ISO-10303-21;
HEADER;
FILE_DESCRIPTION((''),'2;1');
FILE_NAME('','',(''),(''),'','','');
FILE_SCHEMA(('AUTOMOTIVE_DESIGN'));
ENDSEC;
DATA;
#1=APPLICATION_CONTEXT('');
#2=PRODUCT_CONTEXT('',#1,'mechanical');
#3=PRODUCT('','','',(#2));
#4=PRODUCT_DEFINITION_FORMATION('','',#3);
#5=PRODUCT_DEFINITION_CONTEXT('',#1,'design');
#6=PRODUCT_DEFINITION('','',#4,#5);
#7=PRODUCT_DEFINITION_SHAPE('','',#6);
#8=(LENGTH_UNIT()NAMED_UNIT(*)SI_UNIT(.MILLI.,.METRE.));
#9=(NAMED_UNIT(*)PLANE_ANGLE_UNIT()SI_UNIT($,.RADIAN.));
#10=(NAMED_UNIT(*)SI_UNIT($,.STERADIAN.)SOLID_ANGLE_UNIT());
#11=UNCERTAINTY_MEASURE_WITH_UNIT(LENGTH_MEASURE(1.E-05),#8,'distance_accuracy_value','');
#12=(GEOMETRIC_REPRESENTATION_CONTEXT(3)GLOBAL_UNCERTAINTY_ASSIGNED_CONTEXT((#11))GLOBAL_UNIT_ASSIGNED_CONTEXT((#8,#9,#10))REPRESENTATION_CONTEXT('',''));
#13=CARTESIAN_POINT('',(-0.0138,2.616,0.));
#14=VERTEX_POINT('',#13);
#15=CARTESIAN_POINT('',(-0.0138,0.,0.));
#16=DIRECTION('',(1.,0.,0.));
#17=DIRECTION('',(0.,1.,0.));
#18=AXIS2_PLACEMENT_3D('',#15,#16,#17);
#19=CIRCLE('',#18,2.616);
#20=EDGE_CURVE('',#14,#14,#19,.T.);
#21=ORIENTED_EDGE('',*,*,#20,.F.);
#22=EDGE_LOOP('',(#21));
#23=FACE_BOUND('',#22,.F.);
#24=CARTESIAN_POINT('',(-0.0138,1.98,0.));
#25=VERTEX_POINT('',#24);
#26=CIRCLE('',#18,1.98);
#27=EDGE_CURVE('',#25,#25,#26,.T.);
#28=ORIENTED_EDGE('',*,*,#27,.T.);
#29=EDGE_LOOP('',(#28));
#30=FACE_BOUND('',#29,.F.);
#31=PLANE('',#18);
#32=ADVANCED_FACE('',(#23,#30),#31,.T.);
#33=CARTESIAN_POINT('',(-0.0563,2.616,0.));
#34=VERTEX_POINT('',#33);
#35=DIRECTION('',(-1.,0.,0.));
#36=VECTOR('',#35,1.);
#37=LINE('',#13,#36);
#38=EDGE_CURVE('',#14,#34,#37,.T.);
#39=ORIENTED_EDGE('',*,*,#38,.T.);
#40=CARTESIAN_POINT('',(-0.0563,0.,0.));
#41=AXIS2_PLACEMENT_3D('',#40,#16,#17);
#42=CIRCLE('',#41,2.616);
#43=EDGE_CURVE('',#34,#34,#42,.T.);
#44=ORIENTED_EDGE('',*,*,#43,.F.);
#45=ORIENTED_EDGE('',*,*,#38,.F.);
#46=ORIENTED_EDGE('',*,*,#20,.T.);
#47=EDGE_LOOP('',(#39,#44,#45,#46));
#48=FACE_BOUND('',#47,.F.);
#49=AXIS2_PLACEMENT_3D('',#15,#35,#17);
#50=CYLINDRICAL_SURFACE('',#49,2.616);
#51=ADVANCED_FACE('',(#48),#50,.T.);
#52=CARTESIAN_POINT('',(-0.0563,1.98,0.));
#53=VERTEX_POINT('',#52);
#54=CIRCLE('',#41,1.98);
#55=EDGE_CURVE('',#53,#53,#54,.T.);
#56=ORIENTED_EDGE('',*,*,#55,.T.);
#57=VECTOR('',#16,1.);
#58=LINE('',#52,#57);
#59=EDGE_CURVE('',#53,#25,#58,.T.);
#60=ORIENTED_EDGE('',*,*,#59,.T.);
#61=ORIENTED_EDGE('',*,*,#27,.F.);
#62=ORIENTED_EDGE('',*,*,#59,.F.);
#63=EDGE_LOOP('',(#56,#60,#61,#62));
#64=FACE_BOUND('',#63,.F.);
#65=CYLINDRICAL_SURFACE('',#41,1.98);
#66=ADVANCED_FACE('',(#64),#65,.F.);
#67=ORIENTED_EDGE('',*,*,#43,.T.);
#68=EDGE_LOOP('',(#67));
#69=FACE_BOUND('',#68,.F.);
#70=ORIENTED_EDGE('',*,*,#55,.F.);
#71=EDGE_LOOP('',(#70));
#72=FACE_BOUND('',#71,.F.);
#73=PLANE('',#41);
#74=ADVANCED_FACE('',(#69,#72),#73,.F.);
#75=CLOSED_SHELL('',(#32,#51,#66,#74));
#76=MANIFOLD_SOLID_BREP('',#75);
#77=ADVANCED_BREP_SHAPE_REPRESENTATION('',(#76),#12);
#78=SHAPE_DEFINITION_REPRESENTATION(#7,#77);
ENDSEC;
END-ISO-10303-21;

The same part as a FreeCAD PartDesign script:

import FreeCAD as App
import Part
import Sketcher
Q = App.Units.Quantity


def add_polygon(sketch, points):
    """Adds a closed chain of lines whose ends are joined by coincident constraints."""
    first, n = sketch.GeometryCount, len(points)
    for a, b in zip(points, points[1:] + points[:1]):
        sketch.addGeometry(Part.LineSegment(App.Vector(*a, 0), App.Vector(*b, 0)), False)
    for i in range(n):
        sketch.addConstraint(Sketcher.Constraint("Coincident", first + i, 2, first + (i + 1) % n, 1))

doc = App.newDocument("Part")
params = doc.addObject("Spreadsheet::Sheet", "Params")
for row, (alias, value) in enumerate([
    ("revolution_angle", "360 deg"),
], start=1):
    params.set(f"A{row}", alias)
    params.set(f"B{row}", "=" + value)
    params.setAlias(f"B{row}", alias)

body = doc.addObject("PartDesign::Body", "Body")

sketch1 = body.newObject("Sketcher::SketchObject", "Sketch")
sketch1.AttachmentSupport = (doc.getObject("XY_Plane"), [""])
sketch1.MapMode = "FlatFace"
add_polygon(sketch1, [(-0.014, 2.616), (-0.056, 2.616), (-0.056, 1.98), (-0.014, 1.98)])
sketch1.addConstraint([
    Sketcher.Constraint("Horizontal", 0),
    Sketcher.Constraint("Vertical", 1),
    Sketcher.Constraint("Horizontal", 2),
    Sketcher.Constraint("Vertical", 3),
    Sketcher.Constraint("DistanceY", 1, 2, 1, 1, Q("0.636 mm")),
    Sketcher.Constraint("DistanceY", -1, 1, 1, 2, Q("1.98 mm")),
    Sketcher.Constraint("DistanceX", 0, 2, 0, 1, Q("0.0425 mm")),
    Sketcher.Constraint("DistanceX", 0, 2, -1, 1, Q("0.0563 mm")),
])
revolution = body.newObject("PartDesign::Revolution", "Revolution")
revolution.Profile = sketch1
revolution.ReferenceAxis = (sketch1, ["H_Axis"])
revolution.setExpression("Angle", "Params.revolution_angle")

doc.recompute()
